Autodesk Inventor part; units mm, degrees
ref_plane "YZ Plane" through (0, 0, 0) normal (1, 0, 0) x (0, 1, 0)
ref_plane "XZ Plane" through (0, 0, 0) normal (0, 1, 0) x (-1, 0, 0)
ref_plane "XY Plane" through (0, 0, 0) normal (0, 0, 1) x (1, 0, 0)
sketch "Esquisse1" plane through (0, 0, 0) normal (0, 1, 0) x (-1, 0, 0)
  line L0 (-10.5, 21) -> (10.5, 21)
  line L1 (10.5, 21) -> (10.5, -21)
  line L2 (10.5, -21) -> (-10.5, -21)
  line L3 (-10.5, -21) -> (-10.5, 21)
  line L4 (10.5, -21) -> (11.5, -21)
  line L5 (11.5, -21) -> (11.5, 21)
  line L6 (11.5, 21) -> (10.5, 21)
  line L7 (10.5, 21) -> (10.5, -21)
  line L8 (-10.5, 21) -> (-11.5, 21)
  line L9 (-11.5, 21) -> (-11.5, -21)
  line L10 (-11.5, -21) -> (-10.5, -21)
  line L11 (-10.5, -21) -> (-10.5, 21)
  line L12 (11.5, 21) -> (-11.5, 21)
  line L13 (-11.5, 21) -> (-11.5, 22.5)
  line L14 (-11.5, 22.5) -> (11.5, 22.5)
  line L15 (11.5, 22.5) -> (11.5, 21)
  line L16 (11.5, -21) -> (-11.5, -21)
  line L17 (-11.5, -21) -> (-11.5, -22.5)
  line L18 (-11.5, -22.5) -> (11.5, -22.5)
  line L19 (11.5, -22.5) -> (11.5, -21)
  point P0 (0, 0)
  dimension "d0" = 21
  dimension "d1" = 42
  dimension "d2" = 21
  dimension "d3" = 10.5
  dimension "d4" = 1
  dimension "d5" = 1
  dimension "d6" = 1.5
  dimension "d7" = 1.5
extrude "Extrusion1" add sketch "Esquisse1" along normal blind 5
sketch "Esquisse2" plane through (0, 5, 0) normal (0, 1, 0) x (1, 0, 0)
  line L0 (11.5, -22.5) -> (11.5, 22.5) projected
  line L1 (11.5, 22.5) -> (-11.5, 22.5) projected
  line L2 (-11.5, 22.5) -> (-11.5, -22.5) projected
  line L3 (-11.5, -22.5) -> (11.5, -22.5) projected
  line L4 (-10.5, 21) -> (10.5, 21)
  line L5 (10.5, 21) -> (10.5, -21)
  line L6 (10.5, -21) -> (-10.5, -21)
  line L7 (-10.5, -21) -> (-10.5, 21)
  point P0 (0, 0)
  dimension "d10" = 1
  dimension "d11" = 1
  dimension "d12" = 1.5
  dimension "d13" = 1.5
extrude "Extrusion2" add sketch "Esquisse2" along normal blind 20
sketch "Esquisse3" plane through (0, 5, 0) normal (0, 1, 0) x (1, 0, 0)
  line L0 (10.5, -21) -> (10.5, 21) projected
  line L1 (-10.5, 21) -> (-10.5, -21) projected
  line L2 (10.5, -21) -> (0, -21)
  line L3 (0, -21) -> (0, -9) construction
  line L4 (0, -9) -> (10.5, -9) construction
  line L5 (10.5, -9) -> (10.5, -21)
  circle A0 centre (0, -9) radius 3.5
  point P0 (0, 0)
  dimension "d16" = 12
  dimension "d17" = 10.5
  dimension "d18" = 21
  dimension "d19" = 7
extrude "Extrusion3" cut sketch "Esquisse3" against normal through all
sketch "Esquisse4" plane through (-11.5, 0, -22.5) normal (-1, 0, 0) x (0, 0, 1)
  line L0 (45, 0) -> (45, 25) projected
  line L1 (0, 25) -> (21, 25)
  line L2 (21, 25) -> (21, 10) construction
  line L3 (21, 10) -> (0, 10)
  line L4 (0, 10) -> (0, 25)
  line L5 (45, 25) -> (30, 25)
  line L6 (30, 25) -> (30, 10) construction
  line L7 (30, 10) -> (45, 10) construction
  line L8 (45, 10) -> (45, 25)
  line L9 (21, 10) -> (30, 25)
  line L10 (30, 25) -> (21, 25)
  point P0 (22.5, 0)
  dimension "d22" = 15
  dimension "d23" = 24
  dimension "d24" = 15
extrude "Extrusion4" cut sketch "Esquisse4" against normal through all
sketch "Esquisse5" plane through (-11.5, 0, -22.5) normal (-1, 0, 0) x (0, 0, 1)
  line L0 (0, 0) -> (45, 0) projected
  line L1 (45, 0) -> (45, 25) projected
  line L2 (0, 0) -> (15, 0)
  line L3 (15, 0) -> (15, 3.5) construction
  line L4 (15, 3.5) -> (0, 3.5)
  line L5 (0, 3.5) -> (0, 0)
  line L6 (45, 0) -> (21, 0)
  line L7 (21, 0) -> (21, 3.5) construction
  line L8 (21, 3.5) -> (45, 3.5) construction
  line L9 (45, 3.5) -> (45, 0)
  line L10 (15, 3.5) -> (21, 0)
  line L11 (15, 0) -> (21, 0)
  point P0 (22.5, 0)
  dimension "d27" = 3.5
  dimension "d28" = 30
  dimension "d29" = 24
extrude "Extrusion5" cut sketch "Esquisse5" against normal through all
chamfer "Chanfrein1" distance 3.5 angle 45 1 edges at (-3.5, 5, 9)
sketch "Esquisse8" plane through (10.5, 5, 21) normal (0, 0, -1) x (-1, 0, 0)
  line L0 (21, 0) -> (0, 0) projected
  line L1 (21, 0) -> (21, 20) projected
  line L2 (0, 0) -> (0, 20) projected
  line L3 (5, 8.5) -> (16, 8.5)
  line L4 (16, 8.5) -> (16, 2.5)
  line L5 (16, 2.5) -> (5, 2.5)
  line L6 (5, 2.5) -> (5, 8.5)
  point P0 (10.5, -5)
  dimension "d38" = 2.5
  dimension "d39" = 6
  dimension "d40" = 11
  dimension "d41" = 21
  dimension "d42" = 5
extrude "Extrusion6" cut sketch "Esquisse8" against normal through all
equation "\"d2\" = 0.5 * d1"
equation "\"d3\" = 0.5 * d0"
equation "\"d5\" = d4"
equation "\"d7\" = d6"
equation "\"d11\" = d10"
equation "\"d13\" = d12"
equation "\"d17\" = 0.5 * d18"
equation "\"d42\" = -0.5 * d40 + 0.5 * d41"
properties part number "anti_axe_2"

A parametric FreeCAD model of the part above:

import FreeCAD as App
import Part
import Sketcher
from FreeCAD import Vector


def edges_at(feature, points):
    """Names of the edges that pass closest to the given points."""
    edges = feature.Shape.Edges
    near = lambda p: min(range(len(edges)), key=lambda i: edges[i].distToShape(Part.Vertex(*p))[0])
    return sorted({f"Edge{near(p) + 1}" for p in points})

doc = App.newDocument("Part")
body = doc.addObject("PartDesign::Body", "Body")

# Sketch on XZ plane
sketch1 = body.newObject("Sketcher::SketchObject", "Sketch")
sketch1.AttachmentSupport = (doc.getObject("XZ_Plane"), [""])
sketch1.MapMode = "FlatFace"
sketch1.addGeometry(Part.LineSegment(Vector(11.5, 22.5, 0), Vector(11.5, -22.5, 0)), False)
sketch1.addGeometry(Part.LineSegment(Vector(11.5, -22.5, 0), Vector(-11.5, -22.5, 0)), False)
sketch1.addGeometry(Part.LineSegment(Vector(-11.5, -22.5, 0), Vector(-11.5, 22.5, 0)), False)
sketch1.addGeometry(Part.LineSegment(Vector(-11.5, 22.5, 0), Vector(11.5, 22.5, 0)), False)
sketch1.addConstraint(Sketcher.Constraint("Coincident", 0, 2, 1, 1))
sketch1.addConstraint(Sketcher.Constraint("Coincident", 1, 2, 2, 1))
sketch1.addConstraint(Sketcher.Constraint("Coincident", 2, 2, 3, 1))
sketch1.addConstraint(Sketcher.Constraint("Coincident", 3, 2, 0, 1))
sketch1.addConstraint(Sketcher.Constraint("Vertical", 0))
sketch1.addConstraint(Sketcher.Constraint("Horizontal", 1))
sketch1.addConstraint(Sketcher.Constraint("Vertical", 2))
sketch1.addConstraint(Sketcher.Constraint("Horizontal", 3))
sketch1.addConstraint(Sketcher.Constraint("Symmetric", 0, 2, 2, 2, -1, 1))
sketch1.addConstraint(Sketcher.Constraint("DistanceX", 1, 2, 1, 1, 23.0))
sketch1.addConstraint(Sketcher.Constraint("DistanceY", 0, 2, 0, 1, 45.0))
pad1 = body.newObject("PartDesign::Pad", "Pad")
pad1.Profile = sketch1
pad1.Length = 5
pad1.Reversed = True

# Sketch on XZ plane
sketch2 = body.newObject("Sketcher::SketchObject", "Sketch001")
sketch2.AttachmentSupport = (doc.getObject("XZ_Plane"), [""])
sketch2.MapMode = "FlatFace"
sketch2.AttachmentOffset = App.Placement(Vector(0, 0, -5), App.Rotation())
sketch2.addGeometry(Part.LineSegment(Vector(-11.5, 22.5, 0), Vector(11.5, 22.5, 0)), False)
sketch2.addGeometry(Part.LineSegment(Vector(11.5, 22.5, 0), Vector(11.5, -22.5, 0)), False)
sketch2.addGeometry(Part.LineSegment(Vector(11.5, -22.5, 0), Vector(-11.5, -22.5, 0)), False)
sketch2.addGeometry(Part.LineSegment(Vector(-11.5, -22.5, 0), Vector(-11.5, 22.5, 0)), False)
sketch2.addGeometry(Part.LineSegment(Vector(-10.5, 21, 0), Vector(-10.5, -21, 0)), False)
sketch2.addGeometry(Part.LineSegment(Vector(-10.5, -21, 0), Vector(10.5, -21, 0)), False)
sketch2.addGeometry(Part.LineSegment(Vector(10.5, -21, 0), Vector(10.5, 21, 0)), False)
sketch2.addGeometry(Part.LineSegment(Vector(10.5, 21, 0), Vector(-10.5, 21, 0)), False)
sketch2.addConstraint(Sketcher.Constraint("Coincident", 0, 2, 1, 1))
sketch2.addConstraint(Sketcher.Constraint("Coincident", 1, 2, 2, 1))
sketch2.addConstraint(Sketcher.Constraint("Coincident", 2, 2, 3, 1))
sketch2.addConstraint(Sketcher.Constraint("Coincident", 3, 2, 0, 1))
sketch2.addConstraint(Sketcher.Constraint("Coincident", 4, 2, 5, 1))
sketch2.addConstraint(Sketcher.Constraint("Coincident", 5, 2, 6, 1))
sketch2.addConstraint(Sketcher.Constraint("Coincident", 6, 2, 7, 1))
sketch2.addConstraint(Sketcher.Constraint("Coincident", 7, 2, 4, 1))
sketch2.addConstraint(Sketcher.Constraint("Horizontal", 0))
sketch2.addConstraint(Sketcher.Constraint("Vertical", 1))
sketch2.addConstraint(Sketcher.Constraint("Horizontal", 2))
sketch2.addConstraint(Sketcher.Constraint("Vertical", 3))
sketch2.addConstraint(Sketcher.Constraint("Vertical", 4))
sketch2.addConstraint(Sketcher.Constraint("Horizontal", 5))
sketch2.addConstraint(Sketcher.Constraint("Vertical", 6))
sketch2.addConstraint(Sketcher.Constraint("Horizontal", 7))
sketch2.addConstraint(Sketcher.Constraint("Symmetric", 0, 2, 2, 2, -1, 1))
sketch2.addConstraint(Sketcher.Constraint("Symmetric", 4, 2, 6, 2, -1, 1))
sketch2.addConstraint(Sketcher.Constraint("DistanceX", 2, 2, 4, 2, 1.0))
sketch2.addConstraint(Sketcher.Constraint("DistanceY", 2, 2, 4, 2, 1.5))
sketch2.addConstraint(Sketcher.Constraint("DistanceX", 0, 1, 0, 2, 23.0))
sketch2.addConstraint(Sketcher.Constraint("DistanceY", 1, 2, 1, 1, 45.0))
pad2 = body.newObject("PartDesign::Pad", "Pad001")
pad2.Profile = sketch2
pad2.Length = 20
pad2.Reversed = True

# Sketch on XZ plane
sketch3 = body.newObject("Sketcher::SketchObject", "Sketch002")
sketch3.AttachmentSupport = (doc.getObject("XZ_Plane"), [""])
sketch3.MapMode = "FlatFace"
sketch3.AttachmentOffset = App.Placement(Vector(0, 0, -5), App.Rotation())
sketch3.addGeometry(Part.Circle(Vector(0, 9, 0), Vector(0, 0, 1), 3.5), False)
sketch3.addConstraint(Sketcher.Constraint("PointOnObject", 0, 3, -2))
sketch3.addConstraint(Sketcher.Constraint("Diameter", 0, 7.0))
sketch3.addConstraint(Sketcher.Constraint("DistanceY", -1, 1, 0, 3, 9.0))
pocket1 = body.newObject("PartDesign::Pocket", "Pocket")
pocket1.Profile = sketch3
pocket1.Type = "ThroughAll"
pocket1.Reversed = True

# Sketch on YZ plane
sketch4 = body.newObject("Sketcher::SketchObject", "Sketch003")
sketch4.AttachmentSupport = (doc.getObject("YZ_Plane"), [""])
sketch4.MapMode = "FlatFace"
sketch4.AttachmentOffset = App.Placement(Vector(0, 0, -11.5), App.Rotation())
sketch4.addGeometry(Part.LineSegment(Vector(25, 7.5, 0), Vector(25, -22.5, 0)), False)
sketch4.addGeometry(Part.LineSegment(Vector(25, -22.5, 0), Vector(10, -22.5, 0)), False)
sketch4.addGeometry(Part.LineSegment(Vector(10, -22.5, 0), Vector(10, -1.5, 0)), False)
sketch4.addGeometry(Part.LineSegment(Vector(10, -1.5, 0), Vector(25, 7.5, 0)), False)
sketch4.addConstraint(Sketcher.Constraint("Coincident", 0, 2, 1, 1))
sketch4.addConstraint(Sketcher.Constraint("Coincident", 1, 2, 2, 1))
sketch4.addConstraint(Sketcher.Constraint("Coincident", 2, 2, 3, 1))
sketch4.addConstraint(Sketcher.Constraint("Coincident", 3, 2, 0, 1))
sketch4.addConstraint(Sketcher.Constraint("Vertical", 0))
sketch4.addConstraint(Sketcher.Constraint("Horizontal", 1))
sketch4.addConstraint(Sketcher.Constraint("Vertical", 2))
sketch4.addConstraint(Sketcher.Constraint("DistanceX", 1, 2, 1, 1, 15.0))
sketch4.addConstraint(Sketcher.Constraint("DistanceY", 0, 2, 0, 1, 30.0))
sketch4.addConstraint(Sketcher.Constraint("DistanceY", 2, 1, 2, 2, 21.0))
sketch4.addConstraint(Sketcher.Constraint("DistanceX", -1, 1, 0, 2, 25.0))
sketch4.addConstraint(Sketcher.Constraint("DistanceY", 0, 2, -1, 1, 22.5))
pocket2 = body.newObject("PartDesign::Pocket", "Pocket001")
pocket2.Profile = sketch4
pocket2.Type = "ThroughAll"
pocket2.Reversed = True

# Sketch on YZ plane
sketch5 = body.newObject("Sketcher::SketchObject", "Sketch004")
sketch5.AttachmentSupport = (doc.getObject("YZ_Plane"), [""])
sketch5.MapMode = "FlatFace"
sketch5.AttachmentOffset = App.Placement(Vector(0, 0, -11.5), App.Rotation())
sketch5.addGeometry(Part.LineSegment(Vector(3.5, -22.5, 0), Vector(0, -22.5, 0)), False)
sketch5.addGeometry(Part.LineSegment(Vector(0, -22.5, 0), Vector(0, -1.5, 0)), False)
sketch5.addGeometry(Part.LineSegment(Vector(0, -1.5, 0), Vector(3.5, -7.5, 0)), False)
sketch5.addGeometry(Part.LineSegment(Vector(3.5, -7.5, 0), Vector(3.5, -22.5, 0)), False)
sketch5.addConstraint(Sketcher.Constraint("Coincident", 0, 2, 1, 1))
sketch5.addConstraint(Sketcher.Constraint("Coincident", 1, 2, 2, 1))
sketch5.addConstraint(Sketcher.Constraint("Coincident", 2, 2, 3, 1))
sketch5.addConstraint(Sketcher.Constraint("Coincident", 3, 2, 0, 1))
sketch5.addConstraint(Sketcher.Constraint("Horizontal", 0))
sketch5.addConstraint(Sketcher.Constraint("Vertical", 1))
sketch5.addConstraint(Sketcher.Constraint("Vertical", 3))
sketch5.addConstraint(Sketcher.Constraint("PointOnObject", 0, 2, -2))
sketch5.addConstraint(Sketcher.Constraint("DistanceX", 0, 2, 0, 1, 3.5))
sketch5.addConstraint(Sketcher.Constraint("DistanceY", 1, 1, 1, 2, 21.0))
sketch5.addConstraint(Sketcher.Constraint("DistanceY", 3, 2, 3, 1, 15.0))
sketch5.addConstraint(Sketcher.Constraint("DistanceY", 0, 2, -1, 1, 22.5))
pocket3 = body.newObject("PartDesign::Pocket", "Pocket002")
pocket3.Profile = sketch5
pocket3.Type = "ThroughAll"
pocket3.Reversed = True
doc.recompute()

chamfer = body.newObject("PartDesign::Chamfer", "Chamfer")
chamfer.Base = (pocket3, edges_at(pocket3, [(-3.5, 5, 9)]))
chamfer.Size = 3.5

# Sketch on XY plane
sketch6 = body.newObject("Sketcher::SketchObject", "Sketch005")
sketch6.AttachmentSupport = (doc.getObject("XY_Plane"), [""])
sketch6.MapMode = "FlatFace"
sketch6.AttachmentOffset = App.Placement(Vector(0, 0, 21), App.Rotation())
sketch6.addGeometry(Part.LineSegment(Vector(-5.5, 13.5, 0), Vector(5.5, 13.5, 0)), False)
sketch6.addGeometry(Part.LineSegment(Vector(5.5, 13.5, 0), Vector(5.5, 7.5, 0)), False)
sketch6.addGeometry(Part.LineSegment(Vector(5.5, 7.5, 0), Vector(-5.5, 7.5, 0)), False)
sketch6.addGeometry(Part.LineSegment(Vector(-5.5, 7.5, 0), Vector(-5.5, 13.5, 0)), False)
sketch6.addConstraint(Sketcher.Constraint("Coincident", 0, 2, 1, 1))
sketch6.addConstraint(Sketcher.Constraint("Coincident", 1, 2, 2, 1))
sketch6.addConstraint(Sketcher.Constraint("Coincident", 2, 2, 3, 1))
sketch6.addConstraint(Sketcher.Constraint("Coincident", 3, 2, 0, 1))
sketch6.addConstraint(Sketcher.Constraint("Horizontal", 0))
sketch6.addConstraint(Sketcher.Constraint("Vertical", 1))
sketch6.addConstraint(Sketcher.Constraint("Horizontal", 2))
sketch6.addConstraint(Sketcher.Constraint("Vertical", 3))
sketch6.addConstraint(Sketcher.Constraint("DistanceX", 0, 1, 0, 2, 11.0))
sketch6.addConstraint(Sketcher.Constraint("DistanceY", 1, 2, 1, 1, 6.0))
sketch6.addConstraint(Sketcher.Constraint("DistanceX", -1, 1, 0, 2, 5.5))
sketch6.addConstraint(Sketcher.Constraint("DistanceY", -1, 1, 0, 2, 13.5))
pocket4 = body.newObject("PartDesign::Pocket", "Pocket003")
pocket4.Profile = sketch6
pocket4.Type = "ThroughAll"
pocket4.Reversed = True

doc.recompute()
